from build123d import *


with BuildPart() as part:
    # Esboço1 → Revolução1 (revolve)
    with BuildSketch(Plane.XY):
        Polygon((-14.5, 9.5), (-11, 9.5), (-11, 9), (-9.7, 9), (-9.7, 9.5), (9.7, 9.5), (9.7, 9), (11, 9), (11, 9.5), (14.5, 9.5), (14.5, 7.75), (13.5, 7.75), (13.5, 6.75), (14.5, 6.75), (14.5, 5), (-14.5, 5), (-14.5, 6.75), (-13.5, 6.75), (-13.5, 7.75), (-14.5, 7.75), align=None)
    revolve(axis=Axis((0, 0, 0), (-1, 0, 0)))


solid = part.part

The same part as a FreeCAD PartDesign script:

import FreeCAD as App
import Part
import Sketcher

doc = App.newDocument("Part")
body = doc.addObject("PartDesign::Body", "Body")

sketch1 = body.newObject("Sketcher::SketchObject", "Sketch")
sketch1.AttachmentSupport = (doc.getObject("XY_Plane"), [""])
sketch1.MapMode = "FlatFace"
sketch1.addGeometry(Part.LineSegment(App.Vector(-11, 9.5, 0), App.Vector(-14.5, 9.5, 0)), False)
sketch1.addGeometry(Part.LineSegment(App.Vector(-14.5, 9.5, 0), App.Vector(-14.5, 7.75, 0)), False)
sketch1.addGeometry(Part.LineSegment(App.Vector(-14.5, 7.75, 0), App.Vector(-13.5, 7.75, 0)), False)
sketch1.addGeometry(Part.LineSegment(App.Vector(-13.5, 7.75, 0), App.Vector(-13.5, 6.75, 0)), False)
sketch1.addGeometry(Part.LineSegment(App.Vector(-13.5, 6.75, 0), App.Vector(-14.5, 6.75, 0)), False)
sketch1.addGeometry(Part.LineSegment(App.Vector(-14.5, 6.75, 0), App.Vector(-14.5, 5, 0)), False)
sketch1.addGeometry(Part.LineSegment(App.Vector(-14.5, 5, 0), App.Vector(14.5, 5, 0)), False)
sketch1.addGeometry(Part.LineSegment(App.Vector(14.5, 5, 0), App.Vector(14.5, 6.75, 0)), False)
sketch1.addGeometry(Part.LineSegment(App.Vector(14.5, 6.75, 0), App.Vector(13.5, 6.75, 0)), False)
sketch1.addGeometry(Part.LineSegment(App.Vector(13.5, 6.75, 0), App.Vector(13.5, 7.75, 0)), False)
sketch1.addGeometry(Part.LineSegment(App.Vector(13.5, 7.75, 0), App.Vector(14.5, 7.75, 0)), False)
sketch1.addGeometry(Part.LineSegment(App.Vector(14.5, 7.75, 0), App.Vector(14.5, 9.5, 0)), False)
sketch1.addGeometry(Part.LineSegment(App.Vector(14.5, 9.5, 0), App.Vector(11, 9.5, 0)), False)
sketch1.addGeometry(Part.LineSegment(App.Vector(11, 9.5, 0), App.Vector(11, 9, 0)), False)
sketch1.addGeometry(Part.LineSegment(App.Vector(11, 9, 0), App.Vector(9.7, 9, 0)), False)
sketch1.addGeometry(Part.LineSegment(App.Vector(9.7, 9, 0), App.Vector(9.7, 9.5, 0)), False)
sketch1.addGeometry(Part.LineSegment(App.Vector(9.7, 9.5, 0), App.Vector(-9.7, 9.5, 0)), False)
sketch1.addGeometry(Part.LineSegment(App.Vector(-9.7, 9.5, 0), App.Vector(-9.7, 9, 0)), False)
sketch1.addGeometry(Part.LineSegment(App.Vector(-9.7, 9, 0), App.Vector(-11, 9, 0)), False)
sketch1.addGeometry(Part.LineSegment(App.Vector(-11, 9, 0), App.Vector(-11, 9.5, 0)), False)
sketch1.addConstraint(Sketcher.Constraint("Coincident", 0, 2, 1, 1))
sketch1.addConstraint(Sketcher.Constraint("Coincident", 1, 2, 2, 1))
sketch1.addConstraint(Sketcher.Constraint("Coincident", 2, 2, 3, 1))
sketch1.addConstraint(Sketcher.Constraint("Coincident", 3, 2, 4, 1))
sketch1.addConstraint(Sketcher.Constraint("Coincident", 4, 2, 5, 1))
sketch1.addConstraint(Sketcher.Constraint("Coincident", 5, 2, 6, 1))
sketch1.addConstraint(Sketcher.Constraint("Coincident", 6, 2, 7, 1))
sketch1.addConstraint(Sketcher.Constraint("Coincident", 7, 2, 8, 1))
sketch1.addConstraint(Sketcher.Constraint("Coincident", 8, 2, 9, 1))
sketch1.addConstraint(Sketcher.Constraint("Coincident", 9, 2, 10, 1))
sketch1.addConstraint(Sketcher.Constraint("Coincident", 10, 2, 11, 1))
sketch1.addConstraint(Sketcher.Constraint("Coincident", 11, 2, 12, 1))
sketch1.addConstraint(Sketcher.Constraint("Coincident", 12, 2, 13, 1))
sketch1.addConstraint(Sketcher.Constraint("Coincident", 13, 2, 14, 1))
sketch1.addConstraint(Sketcher.Constraint("Coincident", 14, 2, 15, 1))
sketch1.addConstraint(Sketcher.Constraint("Coincident", 15, 2, 16, 1))
sketch1.addConstraint(Sketcher.Constraint("Coincident", 16, 2, 17, 1))
sketch1.addConstraint(Sketcher.Constraint("Coincident", 17, 2, 18, 1))
sketch1.addConstraint(Sketcher.Constraint("Coincident", 18, 2, 19, 1))
sketch1.addConstraint(Sketcher.Constraint("Coincident", 19, 2, 0, 1))
sketch1.addConstraint(Sketcher.Constraint("Horizontal", 0))
sketch1.addConstraint(Sketcher.Constraint("Vertical", 1))
sketch1.addConstraint(Sketcher.Constraint("Horizontal", 2))
sketch1.addConstraint(Sketcher.Constraint("Vertical", 3))
sketch1.addConstraint(Sketcher.Constraint("Horizontal", 4))
sketch1.addConstraint(Sketcher.Constraint("Vertical", 5))
sketch1.addConstraint(Sketcher.Constraint("Horizontal", 6))
sketch1.addConstraint(Sketcher.Constraint("Vertical", 7))
sketch1.addConstraint(Sketcher.Constraint("Horizontal", 8))
sketch1.addConstraint(Sketcher.Constraint("Vertical", 9))
sketch1.addConstraint(Sketcher.Constraint("Horizontal", 10))
sketch1.addConstraint(Sketcher.Constraint("Vertical", 11))
sketch1.addConstraint(Sketcher.Constraint("Horizontal", 12))
sketch1.addConstraint(Sketcher.Constraint("Vertical", 13))
sketch1.addConstraint(Sketcher.Constraint("Horizontal", 14))
sketch1.addConstraint(Sketcher.Constraint("Vertical", 15))
sketch1.addConstraint(Sketcher.Constraint("Horizontal", 16))
sketch1.addConstraint(Sketcher.Constraint("Vertical", 17))
sketch1.addConstraint(Sketcher.Constraint("Horizontal", 18))
sketch1.addConstraint(Sketcher.Constraint("Vertical", 19))
sketch1.addConstraint(Sketcher.Constraint("Symmetric", 4, 2, 7, 2, -2))
sketch1.addConstraint(Sketcher.Constraint("Symmetric", 2, 2, 9, 2, -2))
sketch1.addConstraint(Sketcher.Constraint("Symmetric", 0, 2, 11, 2, -2))
sketch1.addConstraint(Sketcher.Constraint("Symmetric", 14, 2, 17, 2, -2))
sketch1.addConstraint(Sketcher.Constraint("Horizontal", 12, 2, 15, 2))
sketch1.addConstraint(Sketcher.Constraint("Vertical", 1, 2, 4, 2))
sketch1.addConstraint(Sketcher.Constraint("Equal", 0, 12))
sketch1.addConstraint(Sketcher.Constraint("Equal", 10, 3))
sketch1.addConstraint(Sketcher.Constraint("Equal", 1, 5))
sketch1.addConstraint(Sketcher.Constraint("DistanceX", 2, 1, 2, 2, 1.0))
sketch1.addConstraint(Sketcher.Constraint("DistanceX", 6, 1, 6, 2, 29.0))
sketch1.addConstraint(Sketcher.Constraint("DistanceX", 0, 2, 0, 1, 3.5))
sketch1.addConstraint(Sketcher.Constraint("DistanceX", 14, 2, 14, 1, 1.3))
sketch1.addConstraint(Sketcher.Constraint("DistanceY", 13, 2, 13, 1, 0.5))
sketch1.addConstraint(Sketcher.Constraint("DistanceY", -1, 1, 5, 2, 5.0))
sketch1.addConstraint(Sketcher.Constraint("DistanceY", -1, 1, 13, 2, 9.0))
revolution = body.newObject("PartDesign::Revolution", "Revolution")
revolution.Profile = sketch1
revolution.ReferenceAxis = (sketch1, ["H_Axis"])
revolution.Angle = 360

doc.recompute()
